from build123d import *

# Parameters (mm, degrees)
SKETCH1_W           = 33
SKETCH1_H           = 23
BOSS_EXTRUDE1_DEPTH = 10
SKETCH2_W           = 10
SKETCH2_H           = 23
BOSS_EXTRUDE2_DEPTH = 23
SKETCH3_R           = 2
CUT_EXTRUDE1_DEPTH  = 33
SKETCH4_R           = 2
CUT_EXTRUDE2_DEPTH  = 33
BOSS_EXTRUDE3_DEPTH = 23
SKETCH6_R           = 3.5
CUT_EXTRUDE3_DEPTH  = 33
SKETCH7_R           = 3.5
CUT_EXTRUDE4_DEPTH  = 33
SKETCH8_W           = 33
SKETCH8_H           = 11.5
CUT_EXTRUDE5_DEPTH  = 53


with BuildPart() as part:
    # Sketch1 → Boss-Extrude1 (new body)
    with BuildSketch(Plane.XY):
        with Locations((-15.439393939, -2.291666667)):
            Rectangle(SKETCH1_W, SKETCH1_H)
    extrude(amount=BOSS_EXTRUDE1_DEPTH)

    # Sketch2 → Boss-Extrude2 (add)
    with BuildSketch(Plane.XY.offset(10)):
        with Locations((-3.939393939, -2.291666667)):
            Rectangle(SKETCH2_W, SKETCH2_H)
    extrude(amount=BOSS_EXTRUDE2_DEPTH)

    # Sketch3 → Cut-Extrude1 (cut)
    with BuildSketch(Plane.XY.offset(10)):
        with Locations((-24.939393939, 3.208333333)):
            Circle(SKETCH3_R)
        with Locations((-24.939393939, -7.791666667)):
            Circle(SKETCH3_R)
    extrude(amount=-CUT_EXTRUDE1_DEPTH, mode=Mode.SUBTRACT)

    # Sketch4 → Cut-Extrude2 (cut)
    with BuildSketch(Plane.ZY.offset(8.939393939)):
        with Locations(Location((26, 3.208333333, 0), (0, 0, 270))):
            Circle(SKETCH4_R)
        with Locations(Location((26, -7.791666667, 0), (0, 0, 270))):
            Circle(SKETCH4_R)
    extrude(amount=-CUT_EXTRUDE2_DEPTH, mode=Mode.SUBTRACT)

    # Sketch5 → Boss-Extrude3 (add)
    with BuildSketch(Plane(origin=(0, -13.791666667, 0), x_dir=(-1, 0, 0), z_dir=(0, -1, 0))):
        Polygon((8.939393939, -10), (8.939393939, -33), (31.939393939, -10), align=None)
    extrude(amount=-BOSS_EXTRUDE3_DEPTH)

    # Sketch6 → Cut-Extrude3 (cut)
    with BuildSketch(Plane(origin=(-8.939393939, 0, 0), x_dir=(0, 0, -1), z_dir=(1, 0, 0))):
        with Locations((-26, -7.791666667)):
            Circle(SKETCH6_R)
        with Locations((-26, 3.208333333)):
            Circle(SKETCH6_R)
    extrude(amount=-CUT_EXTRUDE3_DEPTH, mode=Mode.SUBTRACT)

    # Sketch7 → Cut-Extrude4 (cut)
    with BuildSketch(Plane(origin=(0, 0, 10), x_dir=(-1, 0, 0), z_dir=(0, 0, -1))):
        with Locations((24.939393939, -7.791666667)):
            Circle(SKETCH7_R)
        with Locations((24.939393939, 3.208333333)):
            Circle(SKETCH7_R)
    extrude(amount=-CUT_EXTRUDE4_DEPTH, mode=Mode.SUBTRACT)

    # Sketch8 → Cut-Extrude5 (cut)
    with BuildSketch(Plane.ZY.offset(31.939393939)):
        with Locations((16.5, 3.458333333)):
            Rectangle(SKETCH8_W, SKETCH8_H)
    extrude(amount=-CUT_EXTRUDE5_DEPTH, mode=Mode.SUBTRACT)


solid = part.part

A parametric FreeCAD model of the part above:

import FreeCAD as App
import Part
import Sketcher

doc = App.newDocument("Part")
body = doc.addObject("PartDesign::Body", "Body")

# Sketch on XY plane
sketch1 = body.newObject("Sketcher::SketchObject", "Sketch")
sketch1.AttachmentSupport = (doc.getObject("XY_Plane"), [""])
sketch1.MapMode = "FlatFace"
sketch1.addGeometry(Part.LineSegment(App.Vector(-32, 9, 0), App.Vector(-32, -14, 0)), False)
sketch1.addGeometry(Part.LineSegment(App.Vector(-32, -14, 0), App.Vector(1, -14, 0)), False)
sketch1.addGeometry(Part.LineSegment(App.Vector(1, -14, 0), App.Vector(1, 9, 0)), False)
sketch1.addGeometry(Part.LineSegment(App.Vector(1, 9, 0), App.Vector(-32, 9, 0)), False)
sketch1.addConstraint(Sketcher.Constraint("Coincident", 0, 2, 1, 1))
sketch1.addConstraint(Sketcher.Constraint("Coincident", 1, 2, 2, 1))
sketch1.addConstraint(Sketcher.Constraint("Coincident", 2, 2, 3, 1))
sketch1.addConstraint(Sketcher.Constraint("Coincident", 3, 2, 0, 1))
sketch1.addConstraint(Sketcher.Constraint("Vertical", 0))
sketch1.addConstraint(Sketcher.Constraint("Horizontal", 1))
sketch1.addConstraint(Sketcher.Constraint("Vertical", 2))
sketch1.addConstraint(Sketcher.Constraint("Horizontal", 3))
sketch1.addConstraint(Sketcher.Constraint("DistanceX", 1, 1, 1, 2, 33.0))
sketch1.addConstraint(Sketcher.Constraint("DistanceY", 0, 2, 0, 1, 23.0))
sketch1.addConstraint(Sketcher.Constraint("DistanceX", 0, 2, -1, 1, 31.939394))
sketch1.addConstraint(Sketcher.Constraint("DistanceY", 0, 2, -1, 1, 13.791667))
pad1 = body.newObject("PartDesign::Pad", "Pad")
pad1.Profile = sketch1
pad1.Length = 10

# Sketch on XY plane
sketch2 = body.newObject("Sketcher::SketchObject", "Sketch001")
sketch2.AttachmentSupport = (doc.getObject("XY_Plane"), [""])
sketch2.MapMode = "FlatFace"
sketch2.AttachmentOffset = App.Placement(App.Vector(0, 0, 10), App.Rotation())
sketch2.addGeometry(Part.LineSegment(App.Vector(-9, 9, 0), App.Vector(-9, -14, 0)), False)
sketch2.addGeometry(Part.LineSegment(App.Vector(-9, -14, 0), App.Vector(1, -14, 0)), False)
sketch2.addGeometry(Part.LineSegment(App.Vector(1, -14, 0), App.Vector(1, 9, 0)), False)
sketch2.addGeometry(Part.LineSegment(App.Vector(1, 9, 0), App.Vector(-9, 9, 0)), False)
sketch2.addConstraint(Sketcher.Constraint("Coincident", 0, 2, 1, 1))
sketch2.addConstraint(Sketcher.Constraint("Coincident", 1, 2, 2, 1))
sketch2.addConstraint(Sketcher.Constraint("Coincident", 2, 2, 3, 1))
sketch2.addConstraint(Sketcher.Constraint("Coincident", 3, 2, 0, 1))
sketch2.addConstraint(Sketcher.Constraint("Vertical", 0))
sketch2.addConstraint(Sketcher.Constraint("Horizontal", 1))
sketch2.addConstraint(Sketcher.Constraint("Vertical", 2))
sketch2.addConstraint(Sketcher.Constraint("Horizontal", 3))
sketch2.addConstraint(Sketcher.Constraint("DistanceX", 1, 1, 1, 2, 10.0))
sketch2.addConstraint(Sketcher.Constraint("DistanceY", 0, 2, 0, 1, 23.0))
sketch2.addConstraint(Sketcher.Constraint("DistanceX", 0, 2, -1, 1, 8.939394))
sketch2.addConstraint(Sketcher.Constraint("DistanceY", 0, 2, -1, 1, 13.791667))
pad2 = body.newObject("PartDesign::Pad", "Pad001")
pad2.Profile = sketch2
pad2.Length = 23

# Sketch on XY plane
sketch3 = body.newObject("Sketcher::SketchObject", "Sketch002")
sketch3.AttachmentSupport = (doc.getObject("XY_Plane"), [""])
sketch3.MapMode = "FlatFace"
sketch3.AttachmentOffset = App.Placement(App.Vector(0, 0, 10), App.Rotation())
sketch3.addGeometry(Part.Circle(App.Vector(-24.9, 3.2, 0), App.Vector(0, 0, 1), 2), False)
sketch3.addGeometry(Part.Circle(App.Vector(-24.9, -7.8, 0), App.Vector(0, 0, 1), 2), False)
sketch3.addConstraint(Sketcher.Constraint("Equal", 0, 1))
sketch3.addConstraint(Sketcher.Constraint("Vertical", 0, 3, 1, 3))
sketch3.addConstraint(Sketcher.Constraint("Diameter", 0, 4.0))
sketch3.addConstraint(Sketcher.Constraint("DistanceY", 1, 3, 0, 3, 11.0))
sketch3.addConstraint(Sketcher.Constraint("DistanceX", 0, 3, -1, 1, 24.939394))
sketch3.addConstraint(Sketcher.Constraint("DistanceY", -1, 1, 0, 3, 3.208333))
pocket1 = body.newObject("PartDesign::Pocket", "Pocket")
pocket1.Profile = sketch3
pocket1.Length = 33

# Sketch on YZ plane
sketch4 = body.newObject("Sketcher::SketchObject", "Sketch003")
sketch4.AttachmentSupport = (doc.getObject("YZ_Plane"), [""])
sketch4.MapMode = "FlatFace"
sketch4.AttachmentOffset = App.Placement(App.Vector(0, 0, -8.939394), App.Rotation())
sketch4.addGeometry(Part.Circle(App.Vector(3.2, 26, 0), App.Vector(0, 0, 1), 2), False)
sketch4.addGeometry(Part.Circle(App.Vector(-7.8, 26, 0), App.Vector(0, 0, 1), 2), False)
sketch4.addConstraint(Sketcher.Constraint("Equal", 0, 1))
sketch4.addConstraint(Sketcher.Constraint("Horizontal", 0, 3, 1, 3))
sketch4.addConstraint(Sketcher.Constraint("Diameter", 0, 4.0))
sketch4.addConstraint(Sketcher.Constraint("DistanceY", -1, 1, 0, 3, 26.0))
sketch4.addConstraint(Sketcher.Constraint("DistanceX", 1, 3, 0, 3, 11.0))
sketch4.addConstraint(Sketcher.Constraint("DistanceX", -1, 1, 0, 3, 3.208333))
pocket2 = body.newObject("PartDesign::Pocket", "Pocket001")
pocket2.Profile = sketch4
pocket2.Length = 33
pocket2.Reversed = True

# Sketch on XZ plane
sketch5 = body.newObject("Sketcher::SketchObject", "Sketch004")
sketch5.AttachmentSupport = (doc.getObject("XZ_Plane"), [""])
sketch5.MapMode = "FlatFace"
sketch5.AttachmentOffset = App.Placement(App.Vector(0, 0, 13.791667), App.Rotation())
sketch5.addGeometry(Part.LineSegment(App.Vector(-9, 10, 0), App.Vector(-9, 33, 0)), False)
sketch5.addGeometry(Part.LineSegment(App.Vector(-9, 33, 0), App.Vector(-32, 10, 0)), False)
sketch5.addGeometry(Part.LineSegment(App.Vector(-32, 10, 0), App.Vector(-9, 10, 0)), False)
sketch5.addConstraint(Sketcher.Constraint("Coincident", 0, 2, 1, 1))
sketch5.addConstraint(Sketcher.Constraint("Coincident", 1, 2, 2, 1))
sketch5.addConstraint(Sketcher.Constraint("Coincident", 2, 2, 0, 1))
sketch5.addConstraint(Sketcher.Constraint("Vertical", 0))
sketch5.addConstraint(Sketcher.Constraint("Horizontal", 2))
sketch5.addConstraint(Sketcher.Constraint("Equal", 2, 0))
sketch5.addConstraint(Sketcher.Constraint("DistanceX", 2, 1, 2, 2, 23.0))
sketch5.addConstraint(Sketcher.Constraint("DistanceY", -1, 1, 0, 2, 33.0))
sketch5.addConstraint(Sketcher.Constraint("DistanceX", 0, 2, -1, 1, 8.939394))
pad3 = body.newObject("PartDesign::Pad", "Pad002")
pad3.Profile = sketch5
pad3.Length = 23
pad3.Reversed = True

# Sketch on YZ plane
sketch6 = body.newObject("Sketcher::SketchObject", "Sketch005")
sketch6.AttachmentSupport = (doc.getObject("YZ_Plane"), [""])
sketch6.MapMode = "FlatFace"
sketch6.AttachmentOffset = App.Placement(App.Vector(0, 0, -8.939394), App.Rotation())
sketch6.addGeometry(Part.Circle(App.Vector(-7.8, 26, 0), App.Vector(0, 0, 1), 3.5), False)
sketch6.addGeometry(Part.Circle(App.Vector(3.2, 26, 0), App.Vector(0, 0, 1), 3.5), False)
sketch6.addConstraint(Sketcher.Constraint("Equal", 0, 1))
sketch6.addConstraint(Sketcher.Constraint("Horizontal", 0, 3, 1, 3))
sketch6.addConstraint(Sketcher.Constraint("Diameter", 0, 7.0))
sketch6.addConstraint(Sketcher.Constraint("DistanceY", -1, 1, 0, 3, 26.0))
sketch6.addConstraint(Sketcher.Constraint("DistanceX", 0, 3, 1, 3, 11.0))
sketch6.addConstraint(Sketcher.Constraint("DistanceX", 0, 3, -1, 1, 7.791667))
pocket3 = body.newObject("PartDesign::Pocket", "Pocket002")
pocket3.Profile = sketch6
pocket3.Length = 33

# Sketch on XY plane
sketch7 = body.newObject("Sketcher::SketchObject", "Sketch006")
sketch7.AttachmentSupport = (doc.getObject("XY_Plane"), [""])
sketch7.MapMode = "FlatFace"
sketch7.AttachmentOffset = App.Placement(App.Vector(0, 0, 10), App.Rotation())
sketch7.addGeometry(Part.Circle(App.Vector(-24.9, -7.8, 0), App.Vector(0, 0, 1), 3.5), False)
sketch7.addGeometry(Part.Circle(App.Vector(-24.9, 3.2, 0), App.Vector(0, 0, 1), 3.5), False)
sketch7.addConstraint(Sketcher.Constraint("Equal", 0, 1))
sketch7.addConstraint(Sketcher.Constraint("Vertical", 0, 3, 1, 3))
sketch7.addConstraint(Sketcher.Constraint("Diameter", 0, 7.0))
sketch7.addConstraint(Sketcher.Constraint("DistanceY", 0, 3, 1, 3, 11.0))
sketch7.addConstraint(Sketcher.Constraint("DistanceX", 0, 3, -1, 1, 24.939394))
sketch7.addConstraint(Sketcher.Constraint("DistanceY", 0, 3, -1, 1, 7.791667))
pocket4 = body.newObject("PartDesign::Pocket", "Pocket003")
pocket4.Profile = sketch7
pocket4.Length = 33
pocket4.Reversed = True

# Sketch on YZ plane
sketch8 = body.newObject("Sketcher::SketchObject", "Sketch007")
sketch8.AttachmentSupport = (doc.getObject("YZ_Plane"), [""])
sketch8.MapMode = "FlatFace"
sketch8.AttachmentOffset = App.Placement(App.Vector(0, 0, -31.939394), App.Rotation())
sketch8.addGeometry(Part.LineSegment(App.Vector(9, 0, 0), App.Vector(-2, 0, 0)), False)
sketch8.addGeometry(Part.LineSegment(App.Vector(-2, 0, 0), App.Vector(-2, 33, 0)), False)
sketch8.addGeometry(Part.LineSegment(App.Vector(-2, 33, 0), App.Vector(9, 33, 0)), False)
sketch8.addGeometry(Part.LineSegment(App.Vector(9, 33, 0), App.Vector(9, 0, 0)), False)
sketch8.addConstraint(Sketcher.Constraint("Coincident", 0, 2, 1, 1))
sketch8.addConstraint(Sketcher.Constraint("Coincident", 1, 2, 2, 1))
sketch8.addConstraint(Sketcher.Constraint("Coincident", 2, 2, 3, 1))
sketch8.addConstraint(Sketcher.Constraint("Coincident", 3, 2, 0, 1))
sketch8.addConstraint(Sketcher.Constraint("Horizontal", 0))
sketch8.addConstraint(Sketcher.Constraint("Vertical", 1))
sketch8.addConstraint(Sketcher.Constraint("Horizontal", 2))
sketch8.addConstraint(Sketcher.Constraint("Vertical", 3))
sketch8.addConstraint(Sketcher.Constraint("PointOnObject", 0, 2, -1))
sketch8.addConstraint(Sketcher.Constraint("DistanceY", 1, 1, 1, 2, 33.0))
sketch8.addConstraint(Sketcher.Constraint("DistanceX", 0, 2, 0, 1, 11.5))
sketch8.addConstraint(Sketcher.Constraint("DistanceX", 0, 2, -1, 1, 2.291667))
pocket5 = body.newObject("PartDesign::Pocket", "Pocket004")
pocket5.Profile = sketch8
pocket5.Length = 53
pocket5.Reversed = True

doc.recompute()
